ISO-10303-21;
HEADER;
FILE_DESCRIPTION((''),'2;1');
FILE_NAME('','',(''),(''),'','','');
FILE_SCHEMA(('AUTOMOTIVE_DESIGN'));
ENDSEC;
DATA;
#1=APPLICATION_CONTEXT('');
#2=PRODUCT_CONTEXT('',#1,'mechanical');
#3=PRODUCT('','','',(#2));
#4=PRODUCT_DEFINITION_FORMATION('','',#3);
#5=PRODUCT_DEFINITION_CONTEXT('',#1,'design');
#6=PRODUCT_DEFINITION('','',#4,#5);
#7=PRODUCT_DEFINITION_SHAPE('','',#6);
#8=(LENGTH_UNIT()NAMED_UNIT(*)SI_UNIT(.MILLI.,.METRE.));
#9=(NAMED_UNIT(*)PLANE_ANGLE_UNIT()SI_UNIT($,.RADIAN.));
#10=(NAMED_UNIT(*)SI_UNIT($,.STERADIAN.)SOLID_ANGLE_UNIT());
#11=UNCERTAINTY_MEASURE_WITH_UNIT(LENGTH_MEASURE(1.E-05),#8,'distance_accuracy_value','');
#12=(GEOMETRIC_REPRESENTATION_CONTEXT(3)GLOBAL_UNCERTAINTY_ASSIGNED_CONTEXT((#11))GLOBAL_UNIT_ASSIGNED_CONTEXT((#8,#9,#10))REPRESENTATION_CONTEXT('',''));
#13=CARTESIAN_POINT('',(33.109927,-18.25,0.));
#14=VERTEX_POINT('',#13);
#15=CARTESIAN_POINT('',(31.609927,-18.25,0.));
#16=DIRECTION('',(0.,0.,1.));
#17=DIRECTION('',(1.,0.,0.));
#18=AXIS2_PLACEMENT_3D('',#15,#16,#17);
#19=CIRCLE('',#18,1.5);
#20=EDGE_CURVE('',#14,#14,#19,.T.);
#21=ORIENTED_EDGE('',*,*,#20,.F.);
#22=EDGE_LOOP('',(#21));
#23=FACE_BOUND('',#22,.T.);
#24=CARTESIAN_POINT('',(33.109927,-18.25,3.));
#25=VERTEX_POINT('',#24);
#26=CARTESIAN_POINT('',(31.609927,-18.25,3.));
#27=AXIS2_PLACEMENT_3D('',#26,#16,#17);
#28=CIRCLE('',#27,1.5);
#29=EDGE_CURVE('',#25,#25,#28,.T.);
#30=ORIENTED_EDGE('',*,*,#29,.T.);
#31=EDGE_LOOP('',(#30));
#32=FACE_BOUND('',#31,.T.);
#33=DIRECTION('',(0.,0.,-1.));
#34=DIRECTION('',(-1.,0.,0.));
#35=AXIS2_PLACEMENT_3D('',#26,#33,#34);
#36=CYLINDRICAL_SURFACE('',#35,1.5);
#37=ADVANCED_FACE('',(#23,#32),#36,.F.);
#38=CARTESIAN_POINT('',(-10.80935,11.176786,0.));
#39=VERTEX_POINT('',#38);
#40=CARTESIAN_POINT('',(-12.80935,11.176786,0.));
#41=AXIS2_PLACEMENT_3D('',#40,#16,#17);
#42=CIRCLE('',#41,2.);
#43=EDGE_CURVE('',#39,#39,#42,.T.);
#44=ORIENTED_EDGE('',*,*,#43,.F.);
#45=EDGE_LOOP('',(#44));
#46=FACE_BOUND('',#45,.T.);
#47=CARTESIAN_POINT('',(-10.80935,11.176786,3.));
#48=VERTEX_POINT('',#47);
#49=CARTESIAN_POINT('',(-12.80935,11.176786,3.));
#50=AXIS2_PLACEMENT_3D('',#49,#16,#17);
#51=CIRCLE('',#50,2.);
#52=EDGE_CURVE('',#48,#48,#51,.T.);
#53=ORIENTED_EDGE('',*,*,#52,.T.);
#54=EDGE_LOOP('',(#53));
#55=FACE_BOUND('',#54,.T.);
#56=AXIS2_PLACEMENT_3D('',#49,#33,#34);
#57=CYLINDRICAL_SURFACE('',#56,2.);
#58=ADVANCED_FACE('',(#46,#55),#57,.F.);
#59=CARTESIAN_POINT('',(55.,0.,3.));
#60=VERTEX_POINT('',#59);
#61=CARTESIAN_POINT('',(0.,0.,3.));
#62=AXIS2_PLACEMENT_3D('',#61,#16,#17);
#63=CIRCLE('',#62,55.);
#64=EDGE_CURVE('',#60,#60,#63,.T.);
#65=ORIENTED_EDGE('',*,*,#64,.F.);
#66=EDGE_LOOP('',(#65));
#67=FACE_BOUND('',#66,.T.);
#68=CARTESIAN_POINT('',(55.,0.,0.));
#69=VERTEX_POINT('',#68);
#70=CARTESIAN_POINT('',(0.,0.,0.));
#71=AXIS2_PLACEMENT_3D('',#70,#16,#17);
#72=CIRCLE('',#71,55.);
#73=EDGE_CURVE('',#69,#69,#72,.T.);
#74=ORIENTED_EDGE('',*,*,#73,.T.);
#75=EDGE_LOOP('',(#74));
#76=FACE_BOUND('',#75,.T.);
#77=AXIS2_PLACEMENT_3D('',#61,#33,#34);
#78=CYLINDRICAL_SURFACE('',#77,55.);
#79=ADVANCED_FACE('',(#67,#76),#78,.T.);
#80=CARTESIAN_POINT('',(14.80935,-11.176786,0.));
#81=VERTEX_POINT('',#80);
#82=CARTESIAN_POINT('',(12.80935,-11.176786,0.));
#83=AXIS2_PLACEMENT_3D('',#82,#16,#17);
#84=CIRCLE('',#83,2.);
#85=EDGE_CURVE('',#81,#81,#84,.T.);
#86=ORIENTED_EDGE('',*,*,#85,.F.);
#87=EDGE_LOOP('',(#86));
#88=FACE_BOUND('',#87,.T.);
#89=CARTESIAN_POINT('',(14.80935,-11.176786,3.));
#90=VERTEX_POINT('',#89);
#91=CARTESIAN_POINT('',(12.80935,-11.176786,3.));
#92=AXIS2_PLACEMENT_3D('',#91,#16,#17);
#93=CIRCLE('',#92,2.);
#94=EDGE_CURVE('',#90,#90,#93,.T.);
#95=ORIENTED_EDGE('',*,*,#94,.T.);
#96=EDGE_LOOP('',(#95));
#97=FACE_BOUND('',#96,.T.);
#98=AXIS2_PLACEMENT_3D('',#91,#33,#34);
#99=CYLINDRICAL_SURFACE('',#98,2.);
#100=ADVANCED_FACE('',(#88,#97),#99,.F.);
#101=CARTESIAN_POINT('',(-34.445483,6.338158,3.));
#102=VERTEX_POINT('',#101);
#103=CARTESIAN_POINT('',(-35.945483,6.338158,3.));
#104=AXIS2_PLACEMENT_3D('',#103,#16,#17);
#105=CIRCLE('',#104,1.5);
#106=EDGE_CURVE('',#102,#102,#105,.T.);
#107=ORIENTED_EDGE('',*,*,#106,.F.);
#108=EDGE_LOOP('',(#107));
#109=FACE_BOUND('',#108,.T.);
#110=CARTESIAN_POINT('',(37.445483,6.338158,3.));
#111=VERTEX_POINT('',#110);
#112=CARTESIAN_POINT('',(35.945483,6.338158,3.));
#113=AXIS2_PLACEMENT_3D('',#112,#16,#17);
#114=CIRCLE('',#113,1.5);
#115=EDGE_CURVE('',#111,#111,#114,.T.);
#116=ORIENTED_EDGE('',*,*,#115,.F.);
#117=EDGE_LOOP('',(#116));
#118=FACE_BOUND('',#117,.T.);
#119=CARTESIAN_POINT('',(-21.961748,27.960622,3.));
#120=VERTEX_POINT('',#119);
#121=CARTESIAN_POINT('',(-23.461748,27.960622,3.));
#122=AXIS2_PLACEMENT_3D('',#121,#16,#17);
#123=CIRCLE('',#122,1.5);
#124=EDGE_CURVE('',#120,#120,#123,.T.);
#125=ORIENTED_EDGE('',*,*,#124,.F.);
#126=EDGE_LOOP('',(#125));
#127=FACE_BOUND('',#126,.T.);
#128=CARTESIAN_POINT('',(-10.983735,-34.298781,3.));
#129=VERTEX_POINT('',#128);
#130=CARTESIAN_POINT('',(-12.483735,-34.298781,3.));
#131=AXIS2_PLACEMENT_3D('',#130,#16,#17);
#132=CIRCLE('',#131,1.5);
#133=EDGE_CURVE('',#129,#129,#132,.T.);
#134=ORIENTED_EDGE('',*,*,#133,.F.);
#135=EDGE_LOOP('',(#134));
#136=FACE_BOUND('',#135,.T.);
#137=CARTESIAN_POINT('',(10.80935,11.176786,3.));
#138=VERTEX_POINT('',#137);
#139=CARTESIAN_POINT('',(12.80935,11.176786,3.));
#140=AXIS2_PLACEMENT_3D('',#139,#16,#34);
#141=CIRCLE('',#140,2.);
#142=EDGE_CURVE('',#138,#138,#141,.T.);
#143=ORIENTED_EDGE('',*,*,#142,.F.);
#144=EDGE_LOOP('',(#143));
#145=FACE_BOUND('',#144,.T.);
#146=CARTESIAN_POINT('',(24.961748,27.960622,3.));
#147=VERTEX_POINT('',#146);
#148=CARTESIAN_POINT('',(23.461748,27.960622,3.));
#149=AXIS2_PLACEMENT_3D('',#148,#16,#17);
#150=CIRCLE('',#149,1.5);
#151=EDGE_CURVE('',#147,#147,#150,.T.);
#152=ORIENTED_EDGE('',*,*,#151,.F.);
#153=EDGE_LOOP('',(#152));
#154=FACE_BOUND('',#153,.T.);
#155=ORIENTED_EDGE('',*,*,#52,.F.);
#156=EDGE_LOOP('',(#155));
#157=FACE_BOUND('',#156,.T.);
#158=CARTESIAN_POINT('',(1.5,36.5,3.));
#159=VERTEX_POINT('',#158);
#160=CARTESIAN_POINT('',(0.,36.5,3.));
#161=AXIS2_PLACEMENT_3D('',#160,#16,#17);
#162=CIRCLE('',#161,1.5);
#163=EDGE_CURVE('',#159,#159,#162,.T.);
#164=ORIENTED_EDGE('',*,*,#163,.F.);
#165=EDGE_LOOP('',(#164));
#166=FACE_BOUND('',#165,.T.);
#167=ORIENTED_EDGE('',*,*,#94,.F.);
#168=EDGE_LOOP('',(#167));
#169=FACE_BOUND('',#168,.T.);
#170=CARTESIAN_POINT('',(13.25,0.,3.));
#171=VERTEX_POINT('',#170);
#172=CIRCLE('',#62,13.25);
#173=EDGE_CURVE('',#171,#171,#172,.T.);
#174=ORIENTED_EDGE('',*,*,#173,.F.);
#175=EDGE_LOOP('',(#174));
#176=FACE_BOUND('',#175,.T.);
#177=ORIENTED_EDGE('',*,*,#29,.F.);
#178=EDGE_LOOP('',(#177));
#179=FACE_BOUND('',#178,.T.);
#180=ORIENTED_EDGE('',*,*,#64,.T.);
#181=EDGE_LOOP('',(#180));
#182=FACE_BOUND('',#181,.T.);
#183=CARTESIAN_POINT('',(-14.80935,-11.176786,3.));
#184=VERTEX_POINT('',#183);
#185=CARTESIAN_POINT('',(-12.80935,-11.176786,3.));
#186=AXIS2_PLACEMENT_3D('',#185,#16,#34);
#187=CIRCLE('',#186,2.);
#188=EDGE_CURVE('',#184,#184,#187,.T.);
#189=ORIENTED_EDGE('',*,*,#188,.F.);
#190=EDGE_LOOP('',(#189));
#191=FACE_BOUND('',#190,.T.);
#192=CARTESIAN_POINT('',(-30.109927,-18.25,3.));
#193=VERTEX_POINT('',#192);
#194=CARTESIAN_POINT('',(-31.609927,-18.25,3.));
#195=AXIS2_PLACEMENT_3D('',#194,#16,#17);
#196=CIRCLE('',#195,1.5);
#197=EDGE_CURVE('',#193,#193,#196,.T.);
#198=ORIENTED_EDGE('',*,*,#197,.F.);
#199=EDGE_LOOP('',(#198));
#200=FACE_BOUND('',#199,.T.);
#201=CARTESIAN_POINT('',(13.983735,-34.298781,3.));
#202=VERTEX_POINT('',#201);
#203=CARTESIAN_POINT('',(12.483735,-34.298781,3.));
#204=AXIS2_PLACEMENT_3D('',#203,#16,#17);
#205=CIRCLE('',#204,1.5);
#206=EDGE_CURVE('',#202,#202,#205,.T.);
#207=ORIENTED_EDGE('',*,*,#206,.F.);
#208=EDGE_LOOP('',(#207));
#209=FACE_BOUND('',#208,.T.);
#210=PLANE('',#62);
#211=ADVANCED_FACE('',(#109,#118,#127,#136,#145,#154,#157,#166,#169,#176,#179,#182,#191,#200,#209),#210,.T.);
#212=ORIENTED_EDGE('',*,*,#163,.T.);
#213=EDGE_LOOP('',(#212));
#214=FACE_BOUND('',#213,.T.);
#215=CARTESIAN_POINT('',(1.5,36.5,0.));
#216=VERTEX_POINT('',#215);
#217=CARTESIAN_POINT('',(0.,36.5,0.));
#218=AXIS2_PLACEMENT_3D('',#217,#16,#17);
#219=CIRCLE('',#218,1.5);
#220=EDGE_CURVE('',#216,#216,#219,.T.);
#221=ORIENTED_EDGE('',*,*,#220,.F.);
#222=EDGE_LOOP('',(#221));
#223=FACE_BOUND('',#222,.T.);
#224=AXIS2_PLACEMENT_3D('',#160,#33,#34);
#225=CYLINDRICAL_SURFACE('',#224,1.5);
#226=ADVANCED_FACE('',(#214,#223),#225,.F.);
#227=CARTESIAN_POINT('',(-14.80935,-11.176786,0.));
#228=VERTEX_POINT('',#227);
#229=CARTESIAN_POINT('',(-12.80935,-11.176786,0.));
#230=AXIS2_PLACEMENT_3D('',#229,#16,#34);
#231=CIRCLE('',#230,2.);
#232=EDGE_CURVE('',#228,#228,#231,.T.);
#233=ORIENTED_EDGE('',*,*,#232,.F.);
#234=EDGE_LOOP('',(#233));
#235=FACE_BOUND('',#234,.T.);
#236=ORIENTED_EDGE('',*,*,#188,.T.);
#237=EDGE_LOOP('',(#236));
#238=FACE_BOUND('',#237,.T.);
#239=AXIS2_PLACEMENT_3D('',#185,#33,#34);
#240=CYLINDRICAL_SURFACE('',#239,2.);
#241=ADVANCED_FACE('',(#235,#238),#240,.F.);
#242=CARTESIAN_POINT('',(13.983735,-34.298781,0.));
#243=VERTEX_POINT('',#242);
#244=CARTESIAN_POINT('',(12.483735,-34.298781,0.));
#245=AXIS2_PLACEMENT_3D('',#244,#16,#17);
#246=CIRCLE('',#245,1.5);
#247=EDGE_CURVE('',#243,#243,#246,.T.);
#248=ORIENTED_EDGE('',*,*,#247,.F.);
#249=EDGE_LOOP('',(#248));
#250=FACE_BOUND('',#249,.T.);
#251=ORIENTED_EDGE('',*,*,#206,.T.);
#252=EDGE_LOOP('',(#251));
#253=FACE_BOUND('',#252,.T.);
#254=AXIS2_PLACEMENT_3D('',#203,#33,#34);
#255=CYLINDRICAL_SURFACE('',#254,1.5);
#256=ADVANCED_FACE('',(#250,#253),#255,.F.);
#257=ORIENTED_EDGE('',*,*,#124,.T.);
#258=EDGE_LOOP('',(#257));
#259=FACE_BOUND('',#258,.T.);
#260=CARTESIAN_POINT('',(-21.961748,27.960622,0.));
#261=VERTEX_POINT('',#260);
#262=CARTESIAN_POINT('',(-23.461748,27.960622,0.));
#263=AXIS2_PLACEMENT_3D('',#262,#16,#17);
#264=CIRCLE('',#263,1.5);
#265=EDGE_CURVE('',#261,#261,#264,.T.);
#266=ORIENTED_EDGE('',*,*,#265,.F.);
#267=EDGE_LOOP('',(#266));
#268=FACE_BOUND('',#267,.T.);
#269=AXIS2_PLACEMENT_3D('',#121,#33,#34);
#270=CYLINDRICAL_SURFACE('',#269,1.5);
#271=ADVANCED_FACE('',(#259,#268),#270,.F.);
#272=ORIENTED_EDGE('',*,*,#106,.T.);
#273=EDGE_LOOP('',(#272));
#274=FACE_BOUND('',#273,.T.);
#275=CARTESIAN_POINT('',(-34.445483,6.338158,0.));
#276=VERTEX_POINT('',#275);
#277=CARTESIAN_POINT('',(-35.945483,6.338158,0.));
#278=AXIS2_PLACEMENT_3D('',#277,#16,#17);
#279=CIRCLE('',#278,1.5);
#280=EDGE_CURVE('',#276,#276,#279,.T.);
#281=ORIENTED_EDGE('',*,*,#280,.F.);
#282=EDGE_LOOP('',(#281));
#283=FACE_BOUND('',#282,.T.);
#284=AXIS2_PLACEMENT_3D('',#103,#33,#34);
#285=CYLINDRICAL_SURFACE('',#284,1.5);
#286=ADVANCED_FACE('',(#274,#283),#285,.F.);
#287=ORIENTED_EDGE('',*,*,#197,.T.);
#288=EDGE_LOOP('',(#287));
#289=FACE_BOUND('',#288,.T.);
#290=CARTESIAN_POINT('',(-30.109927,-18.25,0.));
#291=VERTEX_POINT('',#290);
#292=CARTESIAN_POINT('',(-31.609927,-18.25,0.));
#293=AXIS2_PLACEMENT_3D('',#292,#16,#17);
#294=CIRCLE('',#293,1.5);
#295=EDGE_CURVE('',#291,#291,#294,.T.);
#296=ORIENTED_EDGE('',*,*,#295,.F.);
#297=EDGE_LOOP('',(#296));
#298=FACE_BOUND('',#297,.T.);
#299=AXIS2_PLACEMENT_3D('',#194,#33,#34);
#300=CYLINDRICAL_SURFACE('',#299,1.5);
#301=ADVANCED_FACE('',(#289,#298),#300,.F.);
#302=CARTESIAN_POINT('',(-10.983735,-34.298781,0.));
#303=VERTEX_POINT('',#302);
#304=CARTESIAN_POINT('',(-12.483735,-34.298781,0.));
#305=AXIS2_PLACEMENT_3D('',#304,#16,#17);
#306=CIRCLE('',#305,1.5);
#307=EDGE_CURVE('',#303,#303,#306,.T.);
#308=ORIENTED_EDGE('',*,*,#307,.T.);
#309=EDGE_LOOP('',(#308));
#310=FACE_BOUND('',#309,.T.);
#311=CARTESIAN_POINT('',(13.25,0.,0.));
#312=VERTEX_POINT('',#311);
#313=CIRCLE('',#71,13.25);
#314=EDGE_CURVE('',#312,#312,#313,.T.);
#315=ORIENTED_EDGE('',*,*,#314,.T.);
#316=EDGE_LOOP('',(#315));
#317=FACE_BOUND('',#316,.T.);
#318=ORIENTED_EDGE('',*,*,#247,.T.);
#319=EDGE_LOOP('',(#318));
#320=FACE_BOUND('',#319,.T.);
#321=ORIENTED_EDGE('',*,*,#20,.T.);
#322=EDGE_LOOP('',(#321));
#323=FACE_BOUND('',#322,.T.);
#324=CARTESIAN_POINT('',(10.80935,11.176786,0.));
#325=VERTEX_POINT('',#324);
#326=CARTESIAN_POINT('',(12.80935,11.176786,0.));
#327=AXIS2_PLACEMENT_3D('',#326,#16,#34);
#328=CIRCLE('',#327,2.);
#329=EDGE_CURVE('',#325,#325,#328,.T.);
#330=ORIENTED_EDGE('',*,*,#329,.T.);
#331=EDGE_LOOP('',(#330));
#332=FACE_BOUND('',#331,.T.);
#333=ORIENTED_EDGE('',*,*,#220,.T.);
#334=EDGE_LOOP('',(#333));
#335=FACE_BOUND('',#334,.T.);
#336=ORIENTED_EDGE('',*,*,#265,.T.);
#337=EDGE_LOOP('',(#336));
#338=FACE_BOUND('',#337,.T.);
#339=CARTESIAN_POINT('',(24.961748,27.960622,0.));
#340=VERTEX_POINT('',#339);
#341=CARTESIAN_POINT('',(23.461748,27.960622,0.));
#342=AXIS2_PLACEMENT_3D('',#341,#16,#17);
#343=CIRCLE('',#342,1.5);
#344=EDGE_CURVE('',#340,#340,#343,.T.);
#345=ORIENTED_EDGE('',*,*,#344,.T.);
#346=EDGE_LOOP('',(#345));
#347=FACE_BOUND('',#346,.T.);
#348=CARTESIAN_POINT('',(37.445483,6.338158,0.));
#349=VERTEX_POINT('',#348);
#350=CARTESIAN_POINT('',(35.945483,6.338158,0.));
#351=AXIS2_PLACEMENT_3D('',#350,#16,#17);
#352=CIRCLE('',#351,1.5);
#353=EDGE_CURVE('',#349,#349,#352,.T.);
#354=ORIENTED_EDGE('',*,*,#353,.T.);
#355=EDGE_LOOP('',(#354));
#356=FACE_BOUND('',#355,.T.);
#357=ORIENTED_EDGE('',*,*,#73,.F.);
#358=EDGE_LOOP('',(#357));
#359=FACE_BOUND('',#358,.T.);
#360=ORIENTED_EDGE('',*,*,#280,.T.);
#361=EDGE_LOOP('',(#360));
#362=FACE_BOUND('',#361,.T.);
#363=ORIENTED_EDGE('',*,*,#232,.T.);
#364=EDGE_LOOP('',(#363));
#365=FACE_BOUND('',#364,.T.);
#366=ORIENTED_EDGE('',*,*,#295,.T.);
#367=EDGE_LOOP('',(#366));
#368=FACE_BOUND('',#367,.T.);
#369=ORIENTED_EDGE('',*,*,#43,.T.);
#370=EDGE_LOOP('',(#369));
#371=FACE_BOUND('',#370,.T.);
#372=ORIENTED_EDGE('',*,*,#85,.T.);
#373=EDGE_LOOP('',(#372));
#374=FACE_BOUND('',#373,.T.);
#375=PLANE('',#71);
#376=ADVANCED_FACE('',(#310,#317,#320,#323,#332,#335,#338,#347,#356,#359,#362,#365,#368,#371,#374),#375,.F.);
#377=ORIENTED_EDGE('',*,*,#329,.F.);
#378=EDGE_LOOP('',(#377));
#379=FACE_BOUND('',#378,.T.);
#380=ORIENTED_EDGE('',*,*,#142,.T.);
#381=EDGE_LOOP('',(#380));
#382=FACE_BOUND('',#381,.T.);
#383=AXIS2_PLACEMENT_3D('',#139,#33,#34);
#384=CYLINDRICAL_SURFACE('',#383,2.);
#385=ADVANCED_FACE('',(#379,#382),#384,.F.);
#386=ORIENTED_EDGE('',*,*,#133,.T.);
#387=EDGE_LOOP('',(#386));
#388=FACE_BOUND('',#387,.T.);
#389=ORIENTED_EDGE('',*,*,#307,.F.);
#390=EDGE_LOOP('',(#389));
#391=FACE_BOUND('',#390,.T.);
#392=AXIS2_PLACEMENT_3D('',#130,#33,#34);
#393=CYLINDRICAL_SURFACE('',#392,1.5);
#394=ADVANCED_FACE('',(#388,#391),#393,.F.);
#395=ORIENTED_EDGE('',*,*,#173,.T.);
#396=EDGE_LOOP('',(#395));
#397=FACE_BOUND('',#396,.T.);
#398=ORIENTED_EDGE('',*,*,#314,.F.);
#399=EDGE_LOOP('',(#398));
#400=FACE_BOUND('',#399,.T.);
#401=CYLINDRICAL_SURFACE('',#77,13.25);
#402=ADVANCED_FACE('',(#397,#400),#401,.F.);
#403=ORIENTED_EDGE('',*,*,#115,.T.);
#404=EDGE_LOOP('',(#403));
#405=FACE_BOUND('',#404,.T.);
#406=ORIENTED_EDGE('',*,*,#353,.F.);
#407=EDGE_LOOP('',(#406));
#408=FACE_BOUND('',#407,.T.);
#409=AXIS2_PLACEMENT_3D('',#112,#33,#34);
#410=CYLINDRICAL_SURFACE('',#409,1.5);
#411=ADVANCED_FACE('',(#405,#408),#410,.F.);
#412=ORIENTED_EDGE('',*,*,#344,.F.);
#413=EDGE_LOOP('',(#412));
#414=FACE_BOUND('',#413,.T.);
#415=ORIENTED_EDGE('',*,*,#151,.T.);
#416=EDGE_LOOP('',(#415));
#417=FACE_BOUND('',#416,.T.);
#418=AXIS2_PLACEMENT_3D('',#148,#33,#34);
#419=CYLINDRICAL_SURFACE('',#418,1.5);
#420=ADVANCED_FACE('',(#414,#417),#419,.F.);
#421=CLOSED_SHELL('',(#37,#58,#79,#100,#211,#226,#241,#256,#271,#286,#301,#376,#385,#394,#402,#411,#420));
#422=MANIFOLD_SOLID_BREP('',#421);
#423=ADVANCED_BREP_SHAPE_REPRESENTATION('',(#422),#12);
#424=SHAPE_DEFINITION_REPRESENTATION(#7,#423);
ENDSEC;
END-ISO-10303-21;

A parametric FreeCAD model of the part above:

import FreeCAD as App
import Part
import Sketcher

doc = App.newDocument("Part")
body = doc.addObject("PartDesign::Body", "Body")

sketch1 = doc.addObject("Sketcher::SketchObject", "Sketch")
body.addObject(sketch1)
sketch1.AttachmentSupport = (doc.XY_Plane, [""])
sketch1.MapMode = "FlatFace"
sketch1.addGeometry([
    Part.Circle(App.Vector(0, 0, 0), App.Vector(0, 0, 1), 55),
    Part.Circle(App.Vector(-31.609927, -18.25, 0), App.Vector(0, 0, 1), 1.5),
    Part.Circle(App.Vector(-12.483735, -34.298781, 0), App.Vector(0, 0, 1), 1.5),
    Part.Circle(App.Vector(-12.80935, -11.176786, 0), App.Vector(0, 0, 1), 2),
    Part.Circle(App.Vector(12.483735, -34.298781, 0), App.Vector(0, 0, 1), 1.5),
    Part.Circle(App.Vector(31.609927, -18.25, 0), App.Vector(0, 0, 1), 1.5),
    Part.Circle(App.Vector(12.80935, -11.176786, 0), App.Vector(0, 0, 1), 2),
    Part.Circle(App.Vector(0, 0, 0), App.Vector(0, 0, 1), 13.25),
    Part.Circle(App.Vector(-35.945483, 6.338158, 0), App.Vector(0, 0, 1), 1.5),
    Part.Circle(App.Vector(-12.80935, 11.176786, 0), App.Vector(0, 0, 1), 2),
    Part.Circle(App.Vector(-23.461748, 27.960622, 0), App.Vector(0, 0, 1), 1.5),
    Part.Circle(App.Vector(12.80935, 11.176786, 0), App.Vector(0, 0, 1), 2),
    Part.Circle(App.Vector(35.945483, 6.338158, 0), App.Vector(0, 0, 1), 1.5),
    Part.Circle(App.Vector(0, 36.5, 0), App.Vector(0, 0, 1), 1.5),
    Part.Circle(App.Vector(23.461748, 27.960622, 0), App.Vector(0, 0, 1), 1.5),
], False)
sketch1.addConstraint([
    Sketcher.Constraint("Coincident", 0, 3, -1, 1),
    Sketcher.Constraint("Coincident", 7, 3, -1, 1),
    Sketcher.Constraint("Equal", 1, 2),
    Sketcher.Constraint("Equal", 2, 4),
    Sketcher.Constraint("Equal", 4, 5),
    Sketcher.Constraint("Equal", 3, 6),
    Sketcher.Constraint("Equal", 5, 8),
    Sketcher.Constraint("Equal", 6, 9),
    Sketcher.Constraint("Equal", 8, 10),
    Sketcher.Constraint("Equal", 9, 11),
    Sketcher.Constraint("Equal", 10, 12),
    Sketcher.Constraint("Equal", 12, 13),
    Sketcher.Constraint("Equal", 13, 14),
    Sketcher.Constraint("Symmetric", 6, 3, 9, 3, -1, 1),
    Sketcher.Constraint("Symmetric", 3, 3, 11, 3, -1, 1),
    Sketcher.Constraint("Symmetric", 2, 3, 4, 3, -2),
    Sketcher.Constraint("Symmetric", 1, 3, 5, 3, -2),
    Sketcher.Constraint("Symmetric", 3, 3, 6, 3, -2),
    Sketcher.Constraint("Symmetric", 8, 3, 12, 3, -2),
    Sketcher.Constraint("Symmetric", 10, 3, 14, 3, -2),
    Sketcher.Constraint("PointOnObject", 13, 3, -2),
    Sketcher.Constraint("Diameter", 0, 110.0),
    Sketcher.Constraint("Diameter", 1, 3.0),
    Sketcher.Constraint("Diameter", 3, 4.0),
    Sketcher.Constraint("Diameter", 7, 26.5),
    Sketcher.Constraint("DistanceY", -1, 1, 13, 3, 36.5),
    Sketcher.Constraint("DistanceY", 1, 3, -1, 1, 18.25),
    Sketcher.Constraint("DistanceX", 3, 3, 6, 3, 25.618701),
    Sketcher.Constraint("DistanceY", 2, 3, -1, 1, 34.298781),
    Sketcher.Constraint("DistanceY", -1, 1, 8, 3, 6.338158),
    Sketcher.Constraint("DistanceX", 2, 3, 4, 3, 24.96747),
    Sketcher.Constraint("DistanceY", 3, 3, 10, 3, 39.137408),
    Sketcher.Constraint("DistanceX", 1, 3, -1, 1, 31.609927),
    Sketcher.Constraint("DistanceY", 3, 3, -1, 1, 11.176786),
    Sketcher.Constraint("DistanceX", 8, 3, -1, 1, 35.945483),
    Sketcher.Constraint("DistanceX", 10, 3, -1, 1, 23.461748),
])
pad1 = doc.addObject("PartDesign::Pad", "Pad")
body.addObject(pad1)
pad1.Profile = sketch1
pad1.Length = 3

doc.recompute()
